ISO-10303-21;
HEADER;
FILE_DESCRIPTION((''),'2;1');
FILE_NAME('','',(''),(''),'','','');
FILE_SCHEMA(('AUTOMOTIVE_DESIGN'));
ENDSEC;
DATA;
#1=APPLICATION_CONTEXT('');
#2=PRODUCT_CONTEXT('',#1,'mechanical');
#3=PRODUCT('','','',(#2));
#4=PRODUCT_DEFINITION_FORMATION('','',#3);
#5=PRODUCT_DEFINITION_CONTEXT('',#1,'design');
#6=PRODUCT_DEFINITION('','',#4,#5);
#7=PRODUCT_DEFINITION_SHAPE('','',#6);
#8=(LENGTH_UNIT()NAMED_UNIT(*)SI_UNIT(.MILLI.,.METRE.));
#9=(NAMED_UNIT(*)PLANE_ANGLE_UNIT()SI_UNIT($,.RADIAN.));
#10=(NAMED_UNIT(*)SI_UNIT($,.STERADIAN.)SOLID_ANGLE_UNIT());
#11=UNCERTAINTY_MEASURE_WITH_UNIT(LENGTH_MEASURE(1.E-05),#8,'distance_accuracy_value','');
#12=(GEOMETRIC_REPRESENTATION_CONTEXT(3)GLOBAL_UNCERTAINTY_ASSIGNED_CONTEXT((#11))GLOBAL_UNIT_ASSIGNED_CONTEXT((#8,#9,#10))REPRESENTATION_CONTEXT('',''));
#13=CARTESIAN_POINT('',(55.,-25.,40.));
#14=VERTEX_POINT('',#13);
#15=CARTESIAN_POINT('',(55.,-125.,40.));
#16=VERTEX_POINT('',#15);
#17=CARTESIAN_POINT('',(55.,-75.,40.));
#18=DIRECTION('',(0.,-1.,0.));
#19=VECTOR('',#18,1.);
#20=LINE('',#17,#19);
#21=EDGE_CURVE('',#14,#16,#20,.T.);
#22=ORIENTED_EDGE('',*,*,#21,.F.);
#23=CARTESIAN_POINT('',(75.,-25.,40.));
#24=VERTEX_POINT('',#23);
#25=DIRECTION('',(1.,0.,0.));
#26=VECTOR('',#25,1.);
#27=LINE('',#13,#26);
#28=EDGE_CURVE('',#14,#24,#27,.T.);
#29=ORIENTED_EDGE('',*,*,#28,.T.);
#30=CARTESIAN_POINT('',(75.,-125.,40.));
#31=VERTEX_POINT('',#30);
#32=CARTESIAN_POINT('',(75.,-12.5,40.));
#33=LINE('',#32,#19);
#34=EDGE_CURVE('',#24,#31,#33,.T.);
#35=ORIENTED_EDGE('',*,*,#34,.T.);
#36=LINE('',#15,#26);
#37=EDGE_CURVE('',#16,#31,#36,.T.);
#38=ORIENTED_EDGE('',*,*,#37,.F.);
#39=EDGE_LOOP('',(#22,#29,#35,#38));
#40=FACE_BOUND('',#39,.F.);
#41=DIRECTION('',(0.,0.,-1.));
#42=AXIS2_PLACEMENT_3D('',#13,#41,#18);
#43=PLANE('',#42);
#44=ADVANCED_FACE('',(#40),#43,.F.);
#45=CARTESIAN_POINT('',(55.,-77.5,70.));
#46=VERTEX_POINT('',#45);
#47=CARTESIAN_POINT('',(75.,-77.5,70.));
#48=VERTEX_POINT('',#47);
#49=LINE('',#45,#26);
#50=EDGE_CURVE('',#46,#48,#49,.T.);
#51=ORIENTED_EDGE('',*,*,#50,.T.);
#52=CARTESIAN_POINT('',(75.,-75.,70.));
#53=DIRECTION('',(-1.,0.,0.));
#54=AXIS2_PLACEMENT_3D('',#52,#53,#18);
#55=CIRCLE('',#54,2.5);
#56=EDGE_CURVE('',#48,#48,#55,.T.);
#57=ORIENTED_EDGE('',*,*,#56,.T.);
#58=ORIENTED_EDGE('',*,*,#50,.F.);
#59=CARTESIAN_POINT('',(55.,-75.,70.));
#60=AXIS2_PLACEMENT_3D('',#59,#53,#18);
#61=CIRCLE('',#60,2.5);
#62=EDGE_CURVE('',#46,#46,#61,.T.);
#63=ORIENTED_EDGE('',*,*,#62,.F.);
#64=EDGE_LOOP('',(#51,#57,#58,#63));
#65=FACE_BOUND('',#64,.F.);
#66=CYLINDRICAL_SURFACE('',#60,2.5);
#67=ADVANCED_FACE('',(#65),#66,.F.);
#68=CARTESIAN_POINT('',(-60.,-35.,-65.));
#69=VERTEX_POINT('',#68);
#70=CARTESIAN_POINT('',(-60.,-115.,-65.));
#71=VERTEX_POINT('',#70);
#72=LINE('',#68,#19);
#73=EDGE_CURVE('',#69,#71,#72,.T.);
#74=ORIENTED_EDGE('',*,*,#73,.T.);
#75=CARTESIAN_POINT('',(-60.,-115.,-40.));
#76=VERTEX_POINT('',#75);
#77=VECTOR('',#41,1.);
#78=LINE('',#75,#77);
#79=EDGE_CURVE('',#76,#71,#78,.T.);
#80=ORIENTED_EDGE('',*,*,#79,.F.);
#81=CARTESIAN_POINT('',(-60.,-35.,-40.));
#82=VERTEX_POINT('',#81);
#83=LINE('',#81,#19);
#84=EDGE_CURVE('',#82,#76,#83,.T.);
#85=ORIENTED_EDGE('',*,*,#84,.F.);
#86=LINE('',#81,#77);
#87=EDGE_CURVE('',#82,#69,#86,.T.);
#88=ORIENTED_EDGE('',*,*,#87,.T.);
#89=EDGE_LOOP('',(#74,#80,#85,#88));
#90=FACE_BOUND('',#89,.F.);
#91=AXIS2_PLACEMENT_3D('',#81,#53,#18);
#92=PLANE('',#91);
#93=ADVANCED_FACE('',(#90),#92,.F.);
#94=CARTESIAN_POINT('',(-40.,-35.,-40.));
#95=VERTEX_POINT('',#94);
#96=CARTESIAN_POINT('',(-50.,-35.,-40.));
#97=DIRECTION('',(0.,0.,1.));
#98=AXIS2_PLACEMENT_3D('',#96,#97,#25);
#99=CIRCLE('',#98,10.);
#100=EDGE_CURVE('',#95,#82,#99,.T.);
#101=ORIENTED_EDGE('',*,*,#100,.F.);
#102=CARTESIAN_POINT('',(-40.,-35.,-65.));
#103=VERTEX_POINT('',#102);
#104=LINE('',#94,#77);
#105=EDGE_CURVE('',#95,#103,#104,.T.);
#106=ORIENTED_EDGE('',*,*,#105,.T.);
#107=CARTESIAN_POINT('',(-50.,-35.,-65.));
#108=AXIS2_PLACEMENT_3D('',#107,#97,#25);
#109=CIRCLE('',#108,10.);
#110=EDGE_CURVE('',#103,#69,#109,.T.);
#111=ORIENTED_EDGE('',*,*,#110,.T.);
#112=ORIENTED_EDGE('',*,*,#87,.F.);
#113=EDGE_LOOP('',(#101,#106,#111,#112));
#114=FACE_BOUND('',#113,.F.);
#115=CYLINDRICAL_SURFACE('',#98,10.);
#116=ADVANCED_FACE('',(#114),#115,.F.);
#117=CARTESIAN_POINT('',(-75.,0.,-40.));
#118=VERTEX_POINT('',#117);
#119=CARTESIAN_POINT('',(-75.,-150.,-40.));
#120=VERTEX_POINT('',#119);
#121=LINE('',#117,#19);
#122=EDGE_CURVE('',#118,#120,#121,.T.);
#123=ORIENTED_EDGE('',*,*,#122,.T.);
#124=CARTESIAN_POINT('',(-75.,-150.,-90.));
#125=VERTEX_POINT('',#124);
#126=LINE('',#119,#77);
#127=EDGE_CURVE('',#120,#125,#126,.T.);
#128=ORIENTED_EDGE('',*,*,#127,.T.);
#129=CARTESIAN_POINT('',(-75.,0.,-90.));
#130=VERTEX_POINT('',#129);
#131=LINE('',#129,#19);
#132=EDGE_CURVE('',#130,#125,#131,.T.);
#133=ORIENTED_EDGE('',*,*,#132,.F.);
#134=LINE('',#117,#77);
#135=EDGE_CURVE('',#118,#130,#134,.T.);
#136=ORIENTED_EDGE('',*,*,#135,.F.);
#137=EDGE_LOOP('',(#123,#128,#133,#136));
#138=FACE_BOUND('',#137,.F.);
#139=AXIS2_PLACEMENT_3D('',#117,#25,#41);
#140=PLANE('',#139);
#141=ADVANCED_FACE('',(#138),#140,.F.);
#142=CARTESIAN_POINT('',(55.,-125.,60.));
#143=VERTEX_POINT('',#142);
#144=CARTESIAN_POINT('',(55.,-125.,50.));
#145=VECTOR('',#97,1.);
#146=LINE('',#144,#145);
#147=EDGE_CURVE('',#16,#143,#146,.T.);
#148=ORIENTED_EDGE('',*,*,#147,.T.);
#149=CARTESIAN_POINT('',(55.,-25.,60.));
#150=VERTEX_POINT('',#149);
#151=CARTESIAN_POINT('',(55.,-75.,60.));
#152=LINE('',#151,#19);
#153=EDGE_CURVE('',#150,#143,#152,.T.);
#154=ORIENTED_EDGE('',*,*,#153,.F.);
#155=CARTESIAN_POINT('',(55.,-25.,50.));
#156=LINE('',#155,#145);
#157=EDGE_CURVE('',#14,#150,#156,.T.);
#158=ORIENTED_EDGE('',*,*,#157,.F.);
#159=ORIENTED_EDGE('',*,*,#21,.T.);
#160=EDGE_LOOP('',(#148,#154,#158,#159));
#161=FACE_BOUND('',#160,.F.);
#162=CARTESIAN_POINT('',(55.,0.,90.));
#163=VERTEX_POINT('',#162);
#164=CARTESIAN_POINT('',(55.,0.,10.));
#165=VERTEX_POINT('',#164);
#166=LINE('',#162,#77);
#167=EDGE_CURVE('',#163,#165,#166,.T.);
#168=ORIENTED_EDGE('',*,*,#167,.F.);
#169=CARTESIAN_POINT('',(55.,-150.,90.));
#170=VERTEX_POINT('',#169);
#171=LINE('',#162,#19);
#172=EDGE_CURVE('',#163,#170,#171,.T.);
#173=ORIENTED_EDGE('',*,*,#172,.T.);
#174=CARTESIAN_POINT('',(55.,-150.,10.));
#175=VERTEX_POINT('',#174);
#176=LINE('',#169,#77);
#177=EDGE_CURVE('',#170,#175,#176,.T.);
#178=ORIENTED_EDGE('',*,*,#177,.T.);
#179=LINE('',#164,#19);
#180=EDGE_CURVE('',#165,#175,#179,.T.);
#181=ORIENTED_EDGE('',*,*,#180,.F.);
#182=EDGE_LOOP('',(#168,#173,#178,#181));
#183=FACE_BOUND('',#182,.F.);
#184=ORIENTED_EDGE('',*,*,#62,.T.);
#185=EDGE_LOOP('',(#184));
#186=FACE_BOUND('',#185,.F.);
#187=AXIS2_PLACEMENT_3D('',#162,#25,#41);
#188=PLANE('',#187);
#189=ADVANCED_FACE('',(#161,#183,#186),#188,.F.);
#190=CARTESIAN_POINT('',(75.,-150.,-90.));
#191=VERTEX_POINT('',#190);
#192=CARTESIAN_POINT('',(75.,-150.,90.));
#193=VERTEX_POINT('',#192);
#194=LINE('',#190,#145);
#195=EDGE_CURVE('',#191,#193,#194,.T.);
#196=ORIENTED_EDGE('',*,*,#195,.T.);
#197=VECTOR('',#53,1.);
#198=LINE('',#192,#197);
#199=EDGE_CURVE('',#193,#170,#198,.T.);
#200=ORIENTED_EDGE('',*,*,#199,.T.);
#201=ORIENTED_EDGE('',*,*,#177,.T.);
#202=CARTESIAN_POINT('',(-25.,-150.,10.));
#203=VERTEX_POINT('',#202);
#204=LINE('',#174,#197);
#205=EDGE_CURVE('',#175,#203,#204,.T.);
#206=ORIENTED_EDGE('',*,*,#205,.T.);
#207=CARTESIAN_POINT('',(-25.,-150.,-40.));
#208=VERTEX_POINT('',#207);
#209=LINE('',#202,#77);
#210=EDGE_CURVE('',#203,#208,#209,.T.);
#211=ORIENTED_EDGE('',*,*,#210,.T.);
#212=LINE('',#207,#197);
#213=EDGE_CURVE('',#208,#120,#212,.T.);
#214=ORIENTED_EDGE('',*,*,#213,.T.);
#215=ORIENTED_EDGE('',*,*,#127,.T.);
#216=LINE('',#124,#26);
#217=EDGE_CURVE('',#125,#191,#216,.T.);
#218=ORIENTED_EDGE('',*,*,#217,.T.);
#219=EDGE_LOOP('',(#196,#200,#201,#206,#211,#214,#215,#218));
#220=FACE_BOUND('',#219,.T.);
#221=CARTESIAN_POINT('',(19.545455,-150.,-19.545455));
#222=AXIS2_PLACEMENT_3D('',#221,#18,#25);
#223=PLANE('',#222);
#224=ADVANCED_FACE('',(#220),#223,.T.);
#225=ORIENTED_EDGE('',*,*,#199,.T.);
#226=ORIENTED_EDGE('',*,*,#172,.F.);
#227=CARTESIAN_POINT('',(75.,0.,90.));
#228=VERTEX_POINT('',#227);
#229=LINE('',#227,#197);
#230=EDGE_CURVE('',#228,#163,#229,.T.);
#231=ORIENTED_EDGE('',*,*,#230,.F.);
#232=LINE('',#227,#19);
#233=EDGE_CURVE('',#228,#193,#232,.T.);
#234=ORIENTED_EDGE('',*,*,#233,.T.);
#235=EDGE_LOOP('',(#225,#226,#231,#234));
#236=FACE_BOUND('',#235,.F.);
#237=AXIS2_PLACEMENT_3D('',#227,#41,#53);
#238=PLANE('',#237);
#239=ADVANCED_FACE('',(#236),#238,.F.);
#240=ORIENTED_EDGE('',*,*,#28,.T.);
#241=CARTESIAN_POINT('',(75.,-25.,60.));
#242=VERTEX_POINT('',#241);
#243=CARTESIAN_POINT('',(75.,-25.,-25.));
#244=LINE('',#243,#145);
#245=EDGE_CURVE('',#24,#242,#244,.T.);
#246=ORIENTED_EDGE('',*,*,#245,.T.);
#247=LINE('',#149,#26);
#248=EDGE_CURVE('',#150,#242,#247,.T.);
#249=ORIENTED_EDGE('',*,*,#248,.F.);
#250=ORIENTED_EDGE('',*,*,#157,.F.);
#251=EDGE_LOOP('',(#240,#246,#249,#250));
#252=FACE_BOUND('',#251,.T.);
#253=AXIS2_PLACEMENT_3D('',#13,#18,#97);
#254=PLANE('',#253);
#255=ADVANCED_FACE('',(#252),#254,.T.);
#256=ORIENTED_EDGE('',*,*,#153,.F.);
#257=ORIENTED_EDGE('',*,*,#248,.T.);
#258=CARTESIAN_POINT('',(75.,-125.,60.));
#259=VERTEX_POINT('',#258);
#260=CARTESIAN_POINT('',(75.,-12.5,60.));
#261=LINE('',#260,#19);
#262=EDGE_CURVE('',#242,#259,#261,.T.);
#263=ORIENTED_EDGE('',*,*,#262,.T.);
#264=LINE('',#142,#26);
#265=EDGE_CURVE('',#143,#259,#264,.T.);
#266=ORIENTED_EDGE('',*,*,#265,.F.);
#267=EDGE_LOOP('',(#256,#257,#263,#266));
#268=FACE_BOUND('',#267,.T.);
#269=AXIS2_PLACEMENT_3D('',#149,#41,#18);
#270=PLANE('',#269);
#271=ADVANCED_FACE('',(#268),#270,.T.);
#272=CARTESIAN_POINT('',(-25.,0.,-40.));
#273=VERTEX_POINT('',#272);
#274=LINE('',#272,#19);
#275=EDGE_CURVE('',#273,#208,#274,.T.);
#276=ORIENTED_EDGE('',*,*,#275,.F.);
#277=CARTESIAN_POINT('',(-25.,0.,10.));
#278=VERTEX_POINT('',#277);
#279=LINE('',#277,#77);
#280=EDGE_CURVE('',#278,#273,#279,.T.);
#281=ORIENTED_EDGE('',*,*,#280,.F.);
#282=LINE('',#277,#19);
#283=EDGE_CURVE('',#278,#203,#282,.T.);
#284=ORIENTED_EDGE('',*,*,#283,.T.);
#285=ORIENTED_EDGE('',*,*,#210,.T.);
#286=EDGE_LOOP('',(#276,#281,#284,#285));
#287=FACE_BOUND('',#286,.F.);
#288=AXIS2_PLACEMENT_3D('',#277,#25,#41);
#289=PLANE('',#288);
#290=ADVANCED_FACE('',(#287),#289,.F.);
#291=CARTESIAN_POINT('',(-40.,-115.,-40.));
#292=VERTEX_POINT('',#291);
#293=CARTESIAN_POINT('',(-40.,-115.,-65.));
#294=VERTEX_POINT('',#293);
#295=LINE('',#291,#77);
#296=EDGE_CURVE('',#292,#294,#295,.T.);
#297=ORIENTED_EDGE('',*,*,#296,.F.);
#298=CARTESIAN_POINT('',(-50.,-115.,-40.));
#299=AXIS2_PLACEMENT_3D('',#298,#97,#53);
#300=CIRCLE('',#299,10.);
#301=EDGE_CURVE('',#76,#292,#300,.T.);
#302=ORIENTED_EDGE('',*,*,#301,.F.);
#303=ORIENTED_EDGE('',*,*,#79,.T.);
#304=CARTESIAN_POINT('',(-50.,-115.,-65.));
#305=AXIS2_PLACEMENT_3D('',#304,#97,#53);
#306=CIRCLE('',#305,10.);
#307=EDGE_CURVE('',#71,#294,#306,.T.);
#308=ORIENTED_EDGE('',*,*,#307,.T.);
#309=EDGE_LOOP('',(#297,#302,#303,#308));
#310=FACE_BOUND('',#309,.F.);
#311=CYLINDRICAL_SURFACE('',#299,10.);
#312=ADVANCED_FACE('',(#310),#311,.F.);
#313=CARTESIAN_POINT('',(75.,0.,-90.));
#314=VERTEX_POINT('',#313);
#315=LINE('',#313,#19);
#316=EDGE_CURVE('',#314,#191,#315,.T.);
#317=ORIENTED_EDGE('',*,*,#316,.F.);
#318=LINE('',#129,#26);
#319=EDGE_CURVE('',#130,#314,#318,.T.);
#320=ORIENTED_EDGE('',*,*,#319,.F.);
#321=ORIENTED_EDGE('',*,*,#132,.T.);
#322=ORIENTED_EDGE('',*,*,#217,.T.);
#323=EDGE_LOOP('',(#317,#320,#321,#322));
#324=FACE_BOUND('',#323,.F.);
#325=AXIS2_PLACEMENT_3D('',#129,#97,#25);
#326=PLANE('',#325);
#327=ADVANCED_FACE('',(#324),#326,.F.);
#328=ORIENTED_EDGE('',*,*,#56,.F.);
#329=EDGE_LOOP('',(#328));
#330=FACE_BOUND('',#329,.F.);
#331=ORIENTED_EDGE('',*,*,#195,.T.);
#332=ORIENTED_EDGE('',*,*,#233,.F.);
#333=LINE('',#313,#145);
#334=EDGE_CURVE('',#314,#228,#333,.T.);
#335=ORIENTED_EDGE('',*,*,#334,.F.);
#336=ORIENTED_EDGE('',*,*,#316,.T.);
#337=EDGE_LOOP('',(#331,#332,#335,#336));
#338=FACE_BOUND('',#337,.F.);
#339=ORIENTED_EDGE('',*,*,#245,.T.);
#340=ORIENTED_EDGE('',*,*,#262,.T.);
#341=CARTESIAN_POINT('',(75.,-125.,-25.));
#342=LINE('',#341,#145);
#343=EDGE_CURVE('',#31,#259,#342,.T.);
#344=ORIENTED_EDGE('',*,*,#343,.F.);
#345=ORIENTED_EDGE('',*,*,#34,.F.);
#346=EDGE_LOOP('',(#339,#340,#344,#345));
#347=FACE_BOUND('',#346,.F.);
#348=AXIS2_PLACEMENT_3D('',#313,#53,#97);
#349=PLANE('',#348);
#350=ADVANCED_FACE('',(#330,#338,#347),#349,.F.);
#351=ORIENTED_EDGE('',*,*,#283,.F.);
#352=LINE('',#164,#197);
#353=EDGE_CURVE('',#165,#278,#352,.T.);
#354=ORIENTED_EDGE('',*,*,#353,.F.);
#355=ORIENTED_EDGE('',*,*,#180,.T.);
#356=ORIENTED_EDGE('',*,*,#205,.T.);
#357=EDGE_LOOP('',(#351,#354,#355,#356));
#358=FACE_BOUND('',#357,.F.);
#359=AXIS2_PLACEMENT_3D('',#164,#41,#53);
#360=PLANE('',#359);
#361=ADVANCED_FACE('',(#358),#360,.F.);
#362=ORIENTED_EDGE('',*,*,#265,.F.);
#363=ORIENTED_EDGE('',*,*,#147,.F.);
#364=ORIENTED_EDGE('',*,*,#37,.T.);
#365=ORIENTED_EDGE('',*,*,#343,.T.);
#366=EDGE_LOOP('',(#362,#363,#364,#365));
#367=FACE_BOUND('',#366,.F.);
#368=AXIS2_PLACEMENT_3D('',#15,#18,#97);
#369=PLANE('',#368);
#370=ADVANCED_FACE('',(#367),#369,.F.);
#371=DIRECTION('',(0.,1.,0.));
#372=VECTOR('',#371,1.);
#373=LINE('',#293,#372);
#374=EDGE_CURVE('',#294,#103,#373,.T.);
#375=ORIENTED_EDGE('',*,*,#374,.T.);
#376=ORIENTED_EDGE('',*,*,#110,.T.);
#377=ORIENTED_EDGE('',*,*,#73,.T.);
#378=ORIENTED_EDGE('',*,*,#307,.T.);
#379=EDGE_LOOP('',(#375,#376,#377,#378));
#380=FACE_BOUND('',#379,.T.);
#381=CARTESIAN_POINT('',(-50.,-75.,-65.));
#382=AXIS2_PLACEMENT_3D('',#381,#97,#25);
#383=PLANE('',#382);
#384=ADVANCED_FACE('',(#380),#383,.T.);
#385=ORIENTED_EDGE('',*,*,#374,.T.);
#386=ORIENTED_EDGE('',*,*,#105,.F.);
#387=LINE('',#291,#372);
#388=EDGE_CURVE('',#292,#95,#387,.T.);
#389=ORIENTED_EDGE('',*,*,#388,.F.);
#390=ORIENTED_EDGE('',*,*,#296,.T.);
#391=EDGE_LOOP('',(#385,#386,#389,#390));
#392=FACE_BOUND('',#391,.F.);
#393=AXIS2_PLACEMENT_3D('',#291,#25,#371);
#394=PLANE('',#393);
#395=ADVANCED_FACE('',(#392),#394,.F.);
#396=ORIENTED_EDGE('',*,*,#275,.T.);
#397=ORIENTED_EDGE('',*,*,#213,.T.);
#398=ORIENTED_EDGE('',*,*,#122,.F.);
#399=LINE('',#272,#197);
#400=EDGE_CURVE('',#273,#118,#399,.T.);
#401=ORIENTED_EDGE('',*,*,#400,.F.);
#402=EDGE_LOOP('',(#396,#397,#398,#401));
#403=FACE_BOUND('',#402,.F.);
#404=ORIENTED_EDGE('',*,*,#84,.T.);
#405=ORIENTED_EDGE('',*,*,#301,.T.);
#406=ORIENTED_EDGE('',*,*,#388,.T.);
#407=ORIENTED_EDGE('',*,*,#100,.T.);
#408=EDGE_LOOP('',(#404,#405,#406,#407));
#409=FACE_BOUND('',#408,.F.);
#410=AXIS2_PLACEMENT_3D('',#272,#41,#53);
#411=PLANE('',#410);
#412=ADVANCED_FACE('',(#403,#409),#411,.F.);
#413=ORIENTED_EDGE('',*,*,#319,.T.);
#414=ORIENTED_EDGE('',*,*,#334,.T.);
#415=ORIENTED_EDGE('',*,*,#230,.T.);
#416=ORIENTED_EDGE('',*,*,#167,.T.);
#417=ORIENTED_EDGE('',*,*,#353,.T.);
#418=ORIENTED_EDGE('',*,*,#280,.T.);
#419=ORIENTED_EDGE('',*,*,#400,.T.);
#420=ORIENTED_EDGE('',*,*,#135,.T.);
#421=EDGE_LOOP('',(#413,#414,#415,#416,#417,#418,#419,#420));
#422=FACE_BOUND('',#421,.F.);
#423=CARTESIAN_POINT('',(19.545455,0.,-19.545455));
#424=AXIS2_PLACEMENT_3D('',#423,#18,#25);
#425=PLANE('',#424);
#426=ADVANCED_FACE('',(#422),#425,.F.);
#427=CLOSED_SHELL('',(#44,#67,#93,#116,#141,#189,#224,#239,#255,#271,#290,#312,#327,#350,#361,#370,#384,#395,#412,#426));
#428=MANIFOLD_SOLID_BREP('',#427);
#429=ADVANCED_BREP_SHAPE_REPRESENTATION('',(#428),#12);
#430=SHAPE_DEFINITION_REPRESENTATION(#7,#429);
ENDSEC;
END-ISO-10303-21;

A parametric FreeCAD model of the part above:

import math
import FreeCAD as App
import Part
import Sketcher
from FreeCAD import Vector
Q = App.Units.Quantity

doc = App.newDocument("Part")
params = doc.addObject("Spreadsheet::Sheet", "Params")
for row, (alias, value) in enumerate([
    ("sketch1_width", "20 mm"),
    ("sketch1_width2", "80 mm"),
    ("sketch1_width3", "50 mm"),
    ("pad1_length", "150 mm"),
    ("sketch2_width", "100 mm"),
    ("sketch2_height", "20 mm"),
    ("sketch3_radius", "10 mm"),
    ("sketch3_height", "80 mm"),
    ("pocket2_length", "25 mm"),
    ("sketch4_diameter", "5 mm"),
], start=1):
    params.set(f"A{row}", alias)
    params.set(f"B{row}", "=" + value)
    params.setAlias(f"B{row}", alias)

body = doc.addObject("PartDesign::Body", "Body")

# Sketch on XZ plane
sketch1 = body.newObject("Sketcher::SketchObject", "Sketch")
sketch1.AttachmentSupport = (doc.getObject("XZ_Plane"), [""])
sketch1.MapMode = "FlatFace"
sketch1.addGeometry([
    Part.LineSegment(Vector(75, -90, 0), Vector(75, 90, 0)),  # 0
    Part.LineSegment(Vector(75, 90, 0), Vector(55, 90, 0)),  # 1
    Part.LineSegment(Vector(55, 90, 0), Vector(55, 10, 0)),  # 2
    Part.LineSegment(Vector(55, 10, 0), Vector(-25, 10, 0)),  # 3
    Part.LineSegment(Vector(-25, 10, 0), Vector(-25, -40, 0)),  # 4
    Part.LineSegment(Vector(-25, -40, 0), Vector(-75, -40, 0)),  # 5
    Part.LineSegment(Vector(-75, -40, 0), Vector(-75, -90, 0)),  # 6
    Part.LineSegment(Vector(-75, -90, 0), Vector(75, -90, 0)),  # 7
], False)
sketch1.addConstraint([
    Sketcher.Constraint("Coincident", 0, 2, 1, 1),
    Sketcher.Constraint("Coincident", 1, 2, 2, 1),
    Sketcher.Constraint("Coincident", 2, 2, 3, 1),
    Sketcher.Constraint("Coincident", 3, 2, 4, 1),
    Sketcher.Constraint("Coincident", 4, 2, 5, 1),
    Sketcher.Constraint("Coincident", 5, 2, 6, 1),
    Sketcher.Constraint("Coincident", 6, 2, 7, 1),
    Sketcher.Constraint("Coincident", 7, 2, 0, 1),
    Sketcher.Constraint("Vertical", 0),
    Sketcher.Constraint("Horizontal", 1),
    Sketcher.Constraint("Vertical", 2),
    Sketcher.Constraint("Horizontal", 3),
    Sketcher.Constraint("Vertical", 4),
    Sketcher.Constraint("Horizontal", 5),
    Sketcher.Constraint("Vertical", 6),
    Sketcher.Constraint("Horizontal", 7),
    Sketcher.Constraint("Symmetric", 0, 2, 6, 2, -1, 1),
    Sketcher.Constraint("Equal", 3, 2),
    Sketcher.Constraint("Equal", 5, 4),
    Sketcher.Constraint("Equal", 4, 6),
    Sketcher.Constraint("DistanceX", 1, 2, 1, 1, Q("20 mm")),
    Sketcher.Constraint("DistanceX", 3, 2, 3, 1, Q("80 mm")),
    Sketcher.Constraint("DistanceX", 5, 2, 5, 1, Q("50 mm")),
])
sketch1.setExpression("Constraints[20]", "Params.sketch1_width")
sketch1.setExpression("Constraints[21]", "Params.sketch1_width2")
sketch1.setExpression("Constraints[22]", "Params.sketch1_width3")
pad1 = body.newObject("PartDesign::Pad", "Pad")
pad1.Profile = sketch1
pad1.setExpression("Length", "Params.pad1_length")

# Sketch on YZ plane
sketch2 = body.newObject("Sketcher::SketchObject", "Sketch001")
sketch2.AttachmentSupport = (doc.getObject("YZ_Plane"), [""])
sketch2.MapMode = "FlatFace"
sketch2.AttachmentOffset = App.Placement(Vector(0, 0, 55), App.Rotation())
sketch2.addGeometry([
    Part.LineSegment(Vector(-25, 60, 0), Vector(-25, 40, 0)),
    Part.LineSegment(Vector(-25, 40, 0), Vector(-125, 40, 0)),
    Part.LineSegment(Vector(-125, 40, 0), Vector(-125, 60, 0)),
    Part.LineSegment(Vector(-125, 60, 0), Vector(-25, 60, 0)),
], False)
sketch2.addConstraint([
    Sketcher.Constraint("Coincident", 0, 2, 1, 1),
    Sketcher.Constraint("Coincident", 1, 2, 2, 1),
    Sketcher.Constraint("Coincident", 2, 2, 3, 1),
    Sketcher.Constraint("Coincident", 3, 2, 0, 1),
    Sketcher.Constraint("Vertical", 0),
    Sketcher.Constraint("Horizontal", 1),
    Sketcher.Constraint("Vertical", 2),
    Sketcher.Constraint("Horizontal", 3),
    Sketcher.Constraint("DistanceX", 1, 2, 1, 1, Q("100 mm")),
    Sketcher.Constraint("DistanceY", 0, 2, 0, 1, Q("20 mm")),
    Sketcher.Constraint("DistanceX", 0, 2, -1, 1, Q("25 mm")),
    Sketcher.Constraint("DistanceY", -1, 1, 0, 2, Q("40 mm")),
])
sketch2.setExpression("Constraints[8]", "Params.sketch2_width")
sketch2.setExpression("Constraints[9]", "Params.sketch2_height")
pocket1 = body.newObject("PartDesign::Pocket", "Pocket")
pocket1.Profile = sketch2
pocket1.Type = "ThroughAll"
pocket1.Reversed = True

# Sketch on XY plane
sketch3 = body.newObject("Sketcher::SketchObject", "Sketch002")
sketch3.AttachmentSupport = (doc.getObject("XY_Plane"), [""])
sketch3.MapMode = "FlatFace"
sketch3.AttachmentOffset = App.Placement(Vector(0, 0, -40), App.Rotation())
sketch3.addGeometry([
    Part.ArcOfCircle(Part.Circle(Vector(-50, -35, 0), Vector(0, 0, 1), 10), math.radians(0), math.radians(180)),
    Part.LineSegment(Vector(-60, -35, 0), Vector(-60, -115, 0)),
    Part.ArcOfCircle(Part.Circle(Vector(-50, -115, 0), Vector(0, 0, 1), 10), math.radians(180), math.radians(360)),
    Part.LineSegment(Vector(-40, -115, 0), Vector(-40, -35, 0)),
], False)
sketch3.addConstraint([
    Sketcher.Constraint("Tangent", 0, 2, 1, 1),
    Sketcher.Constraint("Tangent", 1, 2, 2, 1),
    Sketcher.Constraint("Tangent", 2, 2, 3, 1),
    Sketcher.Constraint("Tangent", 3, 2, 0, 1),
    Sketcher.Constraint("Vertical", 1),
    Sketcher.Constraint("Vertical", 3),
    Sketcher.Constraint("Radius", 0, Q("10 mm")),
    Sketcher.Constraint("DistanceY", 1, 2, 1, 1, Q("80 mm")),
    Sketcher.Constraint("DistanceX", 0, 3, -1, 1, Q("50 mm")),
    Sketcher.Constraint("DistanceY", 0, 3, -1, 1, Q("35 mm")),
])
sketch3.setExpression("Constraints[6]", "Params.sketch3_radius")
sketch3.setExpression("Constraints[7]", "Params.sketch3_height")
pocket2 = body.newObject("PartDesign::Pocket", "Pocket001")
pocket2.Profile = sketch3
pocket2.setExpression("Length", "Params.pocket2_length")

# Sketch on YZ plane
sketch4 = body.newObject("Sketcher::SketchObject", "Sketch003")
sketch4.AttachmentSupport = (doc.getObject("YZ_Plane"), [""])
sketch4.MapMode = "FlatFace"
sketch4.AttachmentOffset = App.Placement(Vector(0, 0, 55), App.Rotation())
sketch4.addGeometry(Part.Circle(Vector(-75, 70, 0), Vector(0, 0, 1), 2.5), False)
sketch4.addConstraint([
    Sketcher.Constraint("Diameter", 0, Q("5 mm")),
    Sketcher.Constraint("DistanceX", 0, 3, -1, 1, Q("75 mm")),
    Sketcher.Constraint("DistanceY", -1, 1, 0, 3, Q("70 mm")),
])
sketch4.setExpression("Constraints[0]", "Params.sketch4_diameter")
pocket3 = body.newObject("PartDesign::Pocket", "Pocket002")
pocket3.Profile = sketch4
pocket3.Type = "ThroughAll"
pocket3.Reversed = True

doc.recompute()
